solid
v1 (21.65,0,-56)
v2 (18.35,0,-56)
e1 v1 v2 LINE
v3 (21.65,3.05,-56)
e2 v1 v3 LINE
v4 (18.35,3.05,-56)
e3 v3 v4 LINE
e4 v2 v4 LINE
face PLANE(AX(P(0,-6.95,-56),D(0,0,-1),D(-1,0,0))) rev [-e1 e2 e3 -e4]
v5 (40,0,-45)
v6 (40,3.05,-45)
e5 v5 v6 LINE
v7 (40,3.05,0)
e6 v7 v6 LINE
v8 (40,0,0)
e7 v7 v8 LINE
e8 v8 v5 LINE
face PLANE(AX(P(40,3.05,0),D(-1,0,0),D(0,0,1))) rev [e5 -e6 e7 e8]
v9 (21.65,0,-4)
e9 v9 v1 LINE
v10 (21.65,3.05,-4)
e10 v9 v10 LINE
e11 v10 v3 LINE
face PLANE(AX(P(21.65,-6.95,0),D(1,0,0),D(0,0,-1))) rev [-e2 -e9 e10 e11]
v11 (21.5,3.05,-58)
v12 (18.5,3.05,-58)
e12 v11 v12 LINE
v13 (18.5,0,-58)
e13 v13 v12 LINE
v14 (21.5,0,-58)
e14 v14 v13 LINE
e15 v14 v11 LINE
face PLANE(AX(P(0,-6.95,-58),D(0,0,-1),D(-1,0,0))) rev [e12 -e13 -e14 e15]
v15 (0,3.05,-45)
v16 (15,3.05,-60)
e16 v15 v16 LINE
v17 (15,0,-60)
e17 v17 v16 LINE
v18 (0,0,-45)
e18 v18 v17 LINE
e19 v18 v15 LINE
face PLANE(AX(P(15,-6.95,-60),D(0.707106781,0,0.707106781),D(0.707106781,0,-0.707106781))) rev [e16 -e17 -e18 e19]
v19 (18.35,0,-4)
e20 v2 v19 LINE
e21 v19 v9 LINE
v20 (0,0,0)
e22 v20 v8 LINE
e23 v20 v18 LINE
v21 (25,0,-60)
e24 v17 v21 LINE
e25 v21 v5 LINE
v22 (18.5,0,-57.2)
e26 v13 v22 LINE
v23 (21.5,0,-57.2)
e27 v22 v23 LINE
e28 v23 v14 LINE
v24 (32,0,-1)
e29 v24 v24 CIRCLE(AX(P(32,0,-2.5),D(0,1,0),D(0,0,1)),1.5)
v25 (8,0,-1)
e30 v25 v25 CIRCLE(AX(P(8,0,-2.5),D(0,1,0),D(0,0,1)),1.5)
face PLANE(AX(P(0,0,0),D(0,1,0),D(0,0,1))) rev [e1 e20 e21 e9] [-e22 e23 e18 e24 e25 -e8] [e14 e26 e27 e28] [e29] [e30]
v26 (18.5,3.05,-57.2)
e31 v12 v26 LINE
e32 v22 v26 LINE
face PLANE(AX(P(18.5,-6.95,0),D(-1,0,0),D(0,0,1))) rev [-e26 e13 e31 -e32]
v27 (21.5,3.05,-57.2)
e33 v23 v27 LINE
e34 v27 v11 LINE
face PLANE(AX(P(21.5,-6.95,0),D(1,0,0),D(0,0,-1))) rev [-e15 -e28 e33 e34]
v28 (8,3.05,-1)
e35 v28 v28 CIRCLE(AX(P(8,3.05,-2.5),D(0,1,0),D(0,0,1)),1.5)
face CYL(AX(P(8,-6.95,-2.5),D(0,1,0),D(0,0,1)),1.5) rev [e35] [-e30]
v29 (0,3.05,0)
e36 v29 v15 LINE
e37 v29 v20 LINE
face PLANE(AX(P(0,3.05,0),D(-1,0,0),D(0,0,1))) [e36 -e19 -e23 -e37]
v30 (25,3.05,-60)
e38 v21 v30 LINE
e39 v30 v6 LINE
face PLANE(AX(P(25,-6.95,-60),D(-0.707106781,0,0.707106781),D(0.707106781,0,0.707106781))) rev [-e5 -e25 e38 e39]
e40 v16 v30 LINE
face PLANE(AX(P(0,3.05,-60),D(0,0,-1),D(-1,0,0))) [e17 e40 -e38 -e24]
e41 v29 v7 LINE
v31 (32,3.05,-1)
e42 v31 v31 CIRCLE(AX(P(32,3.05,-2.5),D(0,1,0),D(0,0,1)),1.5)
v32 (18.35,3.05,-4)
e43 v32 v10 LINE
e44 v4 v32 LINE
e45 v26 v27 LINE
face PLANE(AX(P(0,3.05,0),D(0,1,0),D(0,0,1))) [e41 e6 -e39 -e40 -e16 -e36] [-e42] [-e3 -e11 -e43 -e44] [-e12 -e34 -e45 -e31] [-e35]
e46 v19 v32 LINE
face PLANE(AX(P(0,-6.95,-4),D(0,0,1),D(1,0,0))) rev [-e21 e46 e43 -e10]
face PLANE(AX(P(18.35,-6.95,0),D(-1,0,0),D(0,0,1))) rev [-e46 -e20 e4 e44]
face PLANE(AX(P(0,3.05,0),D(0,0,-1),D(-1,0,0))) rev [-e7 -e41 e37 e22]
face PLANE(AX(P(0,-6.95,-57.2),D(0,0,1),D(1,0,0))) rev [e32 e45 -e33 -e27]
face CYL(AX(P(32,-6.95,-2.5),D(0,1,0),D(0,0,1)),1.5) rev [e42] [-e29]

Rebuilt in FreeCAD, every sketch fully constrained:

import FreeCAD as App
import Part
import Sketcher

doc = App.newDocument("Part")
params = doc.addObject("Spreadsheet::Sheet", "Params")
for row, (alias, value) in enumerate([
    ("sketch1_width", "40 mm"),
    ("sketch1_height", "60 mm"),
    ("pad1_length", "3.05 mm"),
    ("sketch2_width", "3 mm"),
    ("sketch2_height", "52 mm"),
    ("sketch2_width2", "3.3 mm"),
    ("sketch2_height2", "0.8 mm"),
    ("pocket1_length", "10 mm"),
    ("sketch3_width", "15 mm"),
    ("pocket2_length", "10 mm"),
    ("sketch4_diameter", "3 mm"),
    ("pocket3_length", "10 mm"),
], start=1):
    params.set(f"A{row}", alias)
    params.set(f"B{row}", "=" + value)
    params.setAlias(f"B{row}", alias)

body = doc.addObject("PartDesign::Body", "Body")

# Sketch on XZ plane
sketch1 = body.newObject("Sketcher::SketchObject", "Sketch")
sketch1.AttachmentSupport = (doc.getObject("XZ_Plane"), [""])
sketch1.MapMode = "FlatFace"
sketch1.addGeometry(Part.LineSegment(App.Vector(0, -60, 0), App.Vector(0, 0, 0)), False)
sketch1.addGeometry(Part.LineSegment(App.Vector(0, 0, 0), App.Vector(40, 0, 0)), False)
sketch1.addGeometry(Part.LineSegment(App.Vector(40, 0, 0), App.Vector(40, -60, 0)), False)
sketch1.addGeometry(Part.LineSegment(App.Vector(40, -60, 0), App.Vector(0, -60, 0)), False)
sketch1.addConstraint(Sketcher.Constraint("Coincident", 0, 2, 1, 1))
sketch1.addConstraint(Sketcher.Constraint("Coincident", 1, 2, 2, 1))
sketch1.addConstraint(Sketcher.Constraint("Coincident", 2, 2, 3, 1))
sketch1.addConstraint(Sketcher.Constraint("Coincident", 3, 2, 0, 1))
sketch1.addConstraint(Sketcher.Constraint("Vertical", 0))
sketch1.addConstraint(Sketcher.Constraint("Horizontal", 1))
sketch1.addConstraint(Sketcher.Constraint("Vertical", 2))
sketch1.addConstraint(Sketcher.Constraint("Horizontal", 3))
sketch1.addConstraint(Sketcher.Constraint("Coincident", 0, 2, -1, 1))
sketch1.addConstraint(Sketcher.Constraint("DistanceX", 1, 1, 1, 2, 40.0))
sketch1.addConstraint(Sketcher.Constraint("DistanceY", 0, 1, 0, 2, 60.0))
sketch1.setExpression("Constraints[9]", "Params.sketch1_width")
sketch1.setExpression("Constraints[10]", "Params.sketch1_height")
pad1 = body.newObject("PartDesign::Pad", "Pad")
pad1.Profile = sketch1
pad1.setExpression("Length", "Params.pad1_length")
pad1.Reversed = True

# Sketch on XZ plane
sketch2 = body.newObject("Sketcher::SketchObject", "Sketch001")
sketch2.AttachmentSupport = (doc.getObject("XZ_Plane"), [""])
sketch2.MapMode = "FlatFace"
sketch2.AttachmentOffset = App.Placement(App.Vector(0, 0, -3.05), App.Rotation())
sketch2.addGeometry(Part.LineSegment(App.Vector(18.4, -56, 0), App.Vector(18.4, -4, 0)), False)
sketch2.addGeometry(Part.LineSegment(App.Vector(18.4, -4, 0), App.Vector(21.6, -4, 0)), False)
sketch2.addGeometry(Part.LineSegment(App.Vector(21.6, -4, 0), App.Vector(21.6, -56, 0)), False)
sketch2.addGeometry(Part.LineSegment(App.Vector(21.6, -56, 0), App.Vector(18.4, -56, 0)), False)
sketch2.addGeometry(Part.LineSegment(App.Vector(18.5, -58, 0), App.Vector(18.5, -57.2, 0)), False)
sketch2.addGeometry(Part.LineSegment(App.Vector(18.5, -57.2, 0), App.Vector(21.5, -57.2, 0)), False)
sketch2.addGeometry(Part.LineSegment(App.Vector(21.5, -57.2, 0), App.Vector(21.5, -58, 0)), False)
sketch2.addGeometry(Part.LineSegment(App.Vector(21.5, -58, 0), App.Vector(18.5, -58, 0)), False)
sketch2.addConstraint(Sketcher.Constraint("Coincident", 0, 2, 1, 1))
sketch2.addConstraint(Sketcher.Constraint("Coincident", 1, 2, 2, 1))
sketch2.addConstraint(Sketcher.Constraint("Coincident", 2, 2, 3, 1))
sketch2.addConstraint(Sketcher.Constraint("Coincident", 3, 2, 0, 1))
sketch2.addConstraint(Sketcher.Constraint("Coincident", 4, 2, 5, 1))
sketch2.addConstraint(Sketcher.Constraint("Coincident", 5, 2, 6, 1))
sketch2.addConstraint(Sketcher.Constraint("Coincident", 6, 2, 7, 1))
sketch2.addConstraint(Sketcher.Constraint("Coincident", 7, 2, 4, 1))
sketch2.addConstraint(Sketcher.Constraint("Vertical", 0))
sketch2.addConstraint(Sketcher.Constraint("Horizontal", 1))
sketch2.addConstraint(Sketcher.Constraint("Vertical", 2))
sketch2.addConstraint(Sketcher.Constraint("Horizontal", 3))
sketch2.addConstraint(Sketcher.Constraint("Vertical", 4))
sketch2.addConstraint(Sketcher.Constraint("Horizontal", 5))
sketch2.addConstraint(Sketcher.Constraint("Vertical", 6))
sketch2.addConstraint(Sketcher.Constraint("Horizontal", 7))
sketch2.addConstraint(Sketcher.Constraint("DistanceX", 5, 1, 5, 2, 3.0))
sketch2.addConstraint(Sketcher.Constraint("DistanceY", 0, 1, 0, 2, 52.0))
sketch2.addConstraint(Sketcher.Constraint("DistanceX", 1, 1, 1, 2, 3.3))
sketch2.addConstraint(Sketcher.Constraint("DistanceY", 4, 1, 4, 2, 0.8))
sketch2.addConstraint(Sketcher.Constraint("DistanceY", 0, 2, -1, 1, 4.0))
sketch2.addConstraint(Sketcher.Constraint("DistanceY", 6, 2, -1, 1, 58.0))
sketch2.addConstraint(Sketcher.Constraint("DistanceX", -1, 1, 4, 2, 18.5))
sketch2.addConstraint(Sketcher.Constraint("DistanceX", -1, 1, 0, 2, 18.35))
sketch2.setExpression("Constraints[16]", "Params.sketch2_width")
sketch2.setExpression("Constraints[17]", "Params.sketch2_height")
sketch2.setExpression("Constraints[18]", "Params.sketch2_width2")
sketch2.setExpression("Constraints[19]", "Params.sketch2_height2")
pocket1 = body.newObject("PartDesign::Pocket", "Pocket")
pocket1.Profile = sketch2
pocket1.setExpression("Length", "Params.pocket1_length")
pocket1.Reversed = True

# Sketch on XZ plane
sketch3 = body.newObject("Sketcher::SketchObject", "Sketch002")
sketch3.AttachmentSupport = (doc.getObject("XZ_Plane"), [""])
sketch3.MapMode = "FlatFace"
sketch3.AttachmentOffset = App.Placement(App.Vector(0, 0, -3.05), App.Rotation())
sketch3.addGeometry(Part.LineSegment(App.Vector(0, -60, 0), App.Vector(0, -45, 0)), False)
sketch3.addGeometry(Part.LineSegment(App.Vector(0, -45, 0), App.Vector(15, -60, 0)), False)
sketch3.addGeometry(Part.LineSegment(App.Vector(15, -60, 0), App.Vector(0, -60, 0)), False)
sketch3.addGeometry(Part.LineSegment(App.Vector(40, -45, 0), App.Vector(40, -60, 0)), False)
sketch3.addGeometry(Part.LineSegment(App.Vector(40, -60, 0), App.Vector(25, -60, 0)), False)
sketch3.addGeometry(Part.LineSegment(App.Vector(25, -60, 0), App.Vector(40, -45, 0)), False)
sketch3.addConstraint(Sketcher.Constraint("Coincident", 0, 2, 1, 1))
sketch3.addConstraint(Sketcher.Constraint("Coincident", 1, 2, 2, 1))
sketch3.addConstraint(Sketcher.Constraint("Coincident", 2, 2, 0, 1))
sketch3.addConstraint(Sketcher.Constraint("Coincident", 3, 2, 4, 1))
sketch3.addConstraint(Sketcher.Constraint("Coincident", 4, 2, 5, 1))
sketch3.addConstraint(Sketcher.Constraint("Coincident", 5, 2, 3, 1))
sketch3.addConstraint(Sketcher.Constraint("Vertical", 0))
sketch3.addConstraint(Sketcher.Constraint("Horizontal", 2))
sketch3.addConstraint(Sketcher.Constraint("Vertical", 3))
sketch3.addConstraint(Sketcher.Constraint("Horizontal", 4))
sketch3.addConstraint(Sketcher.Constraint("PointOnObject", 0, 2, -2))
sketch3.addConstraint(Sketcher.Constraint("Perpendicular", 1, 5))
sketch3.addConstraint(Sketcher.Constraint("Horizontal", 2, 2, 3, 2))
sketch3.addConstraint(Sketcher.Constraint("Horizontal", 0, 2, 5, 2))
sketch3.addConstraint(Sketcher.Constraint("Equal", 2, 4))
sketch3.addConstraint(Sketcher.Constraint("DistanceX", 2, 2, 2, 1, 15.0))
sketch3.addConstraint(Sketcher.Constraint("DistanceY", 0, 2, -1, 1, 45.0))
sketch3.addConstraint(Sketcher.Constraint("DistanceX", -1, 1, 3, 2, 40.0))
sketch3.setExpression("Constraints[15]", "Params.sketch3_width")
pocket2 = body.newObject("PartDesign::Pocket", "Pocket001")
pocket2.Profile = sketch3
pocket2.setExpression("Length", "Params.pocket2_length")
pocket2.Reversed = True

# Sketch on XZ plane
sketch4 = body.newObject("Sketcher::SketchObject", "Sketch003")
sketch4.AttachmentSupport = (doc.getObject("XZ_Plane"), [""])
sketch4.MapMode = "FlatFace"
sketch4.AttachmentOffset = App.Placement(App.Vector(0, 0, -3.05), App.Rotation())
sketch4.addGeometry(Part.Circle(App.Vector(8, -2.5, 0), App.Vector(0, 0, 1), 1.5), False)
sketch4.addGeometry(Part.Circle(App.Vector(32, -2.5, 0), App.Vector(0, 0, 1), 1.5), False)
sketch4.addConstraint(Sketcher.Constraint("Equal", 0, 1))
sketch4.addConstraint(Sketcher.Constraint("Horizontal", 0, 3, 1, 3))
sketch4.addConstraint(Sketcher.Constraint("Diameter", 0, 3.0))
sketch4.addConstraint(Sketcher.Constraint("DistanceX", -1, 1, 0, 3, 8.0))
sketch4.addConstraint(Sketcher.Constraint("DistanceX", -1, 1, 1, 3, 32.0))
sketch4.addConstraint(Sketcher.Constraint("DistanceY", 0, 3, -1, 1, 2.5))
sketch4.setExpression("Constraints[2]", "Params.sketch4_diameter")
pocket3 = body.newObject("PartDesign::Pocket", "Pocket002")
pocket3.Profile = sketch4
pocket3.setExpression("Length", "Params.pocket3_length")
pocket3.Reversed = True

doc.recompute()
